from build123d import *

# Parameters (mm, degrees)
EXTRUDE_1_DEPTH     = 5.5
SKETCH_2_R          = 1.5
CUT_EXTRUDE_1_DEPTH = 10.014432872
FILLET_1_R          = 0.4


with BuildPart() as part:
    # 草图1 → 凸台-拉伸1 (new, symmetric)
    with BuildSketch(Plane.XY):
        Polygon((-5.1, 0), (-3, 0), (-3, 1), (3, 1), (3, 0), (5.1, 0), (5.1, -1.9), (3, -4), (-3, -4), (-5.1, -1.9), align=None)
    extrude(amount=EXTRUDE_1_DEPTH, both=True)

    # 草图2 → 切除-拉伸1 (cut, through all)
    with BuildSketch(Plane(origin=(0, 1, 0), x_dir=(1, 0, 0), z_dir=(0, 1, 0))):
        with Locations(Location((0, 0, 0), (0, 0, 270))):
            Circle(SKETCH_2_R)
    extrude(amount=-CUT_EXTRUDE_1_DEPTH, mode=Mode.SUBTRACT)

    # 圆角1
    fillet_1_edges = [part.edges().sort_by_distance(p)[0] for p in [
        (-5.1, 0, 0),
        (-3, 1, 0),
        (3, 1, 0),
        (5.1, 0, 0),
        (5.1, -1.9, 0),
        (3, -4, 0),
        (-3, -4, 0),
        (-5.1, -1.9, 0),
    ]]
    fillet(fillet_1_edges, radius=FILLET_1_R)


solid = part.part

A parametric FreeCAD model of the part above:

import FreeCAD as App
import Part
import Sketcher

V = App.Vector


def edges_at(feature, points):
    """Names of the edges that pass closest to the given points."""
    edges = feature.Shape.Edges
    near = lambda p: min(range(len(edges)), key=lambda i: edges[i].distToShape(Part.Vertex(*p))[0])
    return sorted({f"Edge{near(p) + 1}" for p in points})

doc = App.newDocument("Part")
body = doc.addObject("PartDesign::Body", "Body")

sketch1 = body.newObject("Sketcher::SketchObject", "Sketch")
sketch1.AttachmentSupport = (doc.getObject("XY_Plane"), [""])
sketch1.MapMode = "FlatFace"
sketch1.addGeometry([
    Part.LineSegment(V(-3, 0, 0), V(-5.1, 0, 0)),
    Part.LineSegment(V(-5.1, 0, 0), V(-5.1, -1.9, 0)),
    Part.LineSegment(V(-5.1, -1.9, 0), V(-3, -4, 0)),
    Part.LineSegment(V(-3, -4, 0), V(3, -4, 0)),
    Part.LineSegment(V(3, -4, 0), V(5.1, -1.9, 0)),
    Part.LineSegment(V(5.1, -1.9, 0), V(5.1, 0, 0)),
    Part.LineSegment(V(5.1, 0, 0), V(3, 0, 0)),
    Part.LineSegment(V(3, 0, 0), V(3, 1, 0)),
    Part.LineSegment(V(3, 1, 0), V(-3, 1, 0)),
    Part.LineSegment(V(-3, 1, 0), V(-3, 0, 0)),
], False)
sketch1.addConstraint([
    Sketcher.Constraint("Coincident", 0, 2, 1, 1),
    Sketcher.Constraint("Coincident", 1, 2, 2, 1),
    Sketcher.Constraint("Coincident", 2, 2, 3, 1),
    Sketcher.Constraint("Coincident", 3, 2, 4, 1),
    Sketcher.Constraint("Coincident", 4, 2, 5, 1),
    Sketcher.Constraint("Coincident", 5, 2, 6, 1),
    Sketcher.Constraint("Coincident", 6, 2, 7, 1),
    Sketcher.Constraint("Coincident", 7, 2, 8, 1),
    Sketcher.Constraint("Coincident", 8, 2, 9, 1),
    Sketcher.Constraint("Coincident", 9, 2, 0, 1),
    Sketcher.Constraint("Horizontal", 0),
    Sketcher.Constraint("Vertical", 1),
    Sketcher.Constraint("Horizontal", 3),
    Sketcher.Constraint("Vertical", 5),
    Sketcher.Constraint("Horizontal", 6),
    Sketcher.Constraint("Vertical", 7),
    Sketcher.Constraint("Horizontal", 8),
    Sketcher.Constraint("Vertical", 9),
    Sketcher.Constraint("Symmetric", 0, 2, 5, 2, -1, 1),
    Sketcher.Constraint("Symmetric", 6, 2, 9, 2, -2),
    Sketcher.Constraint("Perpendicular", 2, 4),
    Sketcher.Constraint("Horizontal", 1, 2, 4, 2),
    Sketcher.Constraint("Vertical", 3, 2, 6, 2),
    Sketcher.Constraint("Vertical", 2, 2, 8, 2),
    Sketcher.Constraint("DistanceX", 3, 1, 3, 2, 6.0),
    Sketcher.Constraint("DistanceY", 7, 1, 7, 2, 1.0),
    Sketcher.Constraint("DistanceX", 0, 2, 0, 1, 2.1),
    Sketcher.Constraint("DistanceY", 1, 2, 1, 1, 1.9),
])
pad1 = body.newObject("PartDesign::Pad", "Pad")
pad1.Profile = sketch1
pad1.Length = 11
pad1.Midplane = True

sketch2 = body.newObject("Sketcher::SketchObject", "Sketch001")
sketch2.AttachmentSupport = (doc.getObject("XZ_Plane"), [""])
sketch2.MapMode = "FlatFace"
sketch2.AttachmentOffset = App.Placement(V(0, 0, -1), App.Rotation())
sketch2.addGeometry(Part.Circle(V(0, 0, 0), V(0, 0, 1), 1.5), False)
sketch2.addConstraint([
    Sketcher.Constraint("Coincident", 0, 3, -1, 1),
    Sketcher.Constraint("Diameter", 0, 3.0),
])
pocket1 = body.newObject("PartDesign::Pocket", "Pocket")
pocket1.Profile = sketch2
pocket1.Type = "ThroughAll"
pocket1.Reversed = True
doc.recompute()

fillet = body.newObject("PartDesign::Fillet", "Fillet")
fillet.Base = (pocket1, edges_at(pocket1, [
    (-5.1, 0, 0),
    (-3, 1, 0),
    (3, 1, 0),
    (5.1, 0, 0),
    (5.1, -1.9, 0),
    (3, -4, 0),
    (-3, -4, 0),
    (-5.1, -1.9, 0),
]))
fillet.Radius = 0.4

doc.recompute()
